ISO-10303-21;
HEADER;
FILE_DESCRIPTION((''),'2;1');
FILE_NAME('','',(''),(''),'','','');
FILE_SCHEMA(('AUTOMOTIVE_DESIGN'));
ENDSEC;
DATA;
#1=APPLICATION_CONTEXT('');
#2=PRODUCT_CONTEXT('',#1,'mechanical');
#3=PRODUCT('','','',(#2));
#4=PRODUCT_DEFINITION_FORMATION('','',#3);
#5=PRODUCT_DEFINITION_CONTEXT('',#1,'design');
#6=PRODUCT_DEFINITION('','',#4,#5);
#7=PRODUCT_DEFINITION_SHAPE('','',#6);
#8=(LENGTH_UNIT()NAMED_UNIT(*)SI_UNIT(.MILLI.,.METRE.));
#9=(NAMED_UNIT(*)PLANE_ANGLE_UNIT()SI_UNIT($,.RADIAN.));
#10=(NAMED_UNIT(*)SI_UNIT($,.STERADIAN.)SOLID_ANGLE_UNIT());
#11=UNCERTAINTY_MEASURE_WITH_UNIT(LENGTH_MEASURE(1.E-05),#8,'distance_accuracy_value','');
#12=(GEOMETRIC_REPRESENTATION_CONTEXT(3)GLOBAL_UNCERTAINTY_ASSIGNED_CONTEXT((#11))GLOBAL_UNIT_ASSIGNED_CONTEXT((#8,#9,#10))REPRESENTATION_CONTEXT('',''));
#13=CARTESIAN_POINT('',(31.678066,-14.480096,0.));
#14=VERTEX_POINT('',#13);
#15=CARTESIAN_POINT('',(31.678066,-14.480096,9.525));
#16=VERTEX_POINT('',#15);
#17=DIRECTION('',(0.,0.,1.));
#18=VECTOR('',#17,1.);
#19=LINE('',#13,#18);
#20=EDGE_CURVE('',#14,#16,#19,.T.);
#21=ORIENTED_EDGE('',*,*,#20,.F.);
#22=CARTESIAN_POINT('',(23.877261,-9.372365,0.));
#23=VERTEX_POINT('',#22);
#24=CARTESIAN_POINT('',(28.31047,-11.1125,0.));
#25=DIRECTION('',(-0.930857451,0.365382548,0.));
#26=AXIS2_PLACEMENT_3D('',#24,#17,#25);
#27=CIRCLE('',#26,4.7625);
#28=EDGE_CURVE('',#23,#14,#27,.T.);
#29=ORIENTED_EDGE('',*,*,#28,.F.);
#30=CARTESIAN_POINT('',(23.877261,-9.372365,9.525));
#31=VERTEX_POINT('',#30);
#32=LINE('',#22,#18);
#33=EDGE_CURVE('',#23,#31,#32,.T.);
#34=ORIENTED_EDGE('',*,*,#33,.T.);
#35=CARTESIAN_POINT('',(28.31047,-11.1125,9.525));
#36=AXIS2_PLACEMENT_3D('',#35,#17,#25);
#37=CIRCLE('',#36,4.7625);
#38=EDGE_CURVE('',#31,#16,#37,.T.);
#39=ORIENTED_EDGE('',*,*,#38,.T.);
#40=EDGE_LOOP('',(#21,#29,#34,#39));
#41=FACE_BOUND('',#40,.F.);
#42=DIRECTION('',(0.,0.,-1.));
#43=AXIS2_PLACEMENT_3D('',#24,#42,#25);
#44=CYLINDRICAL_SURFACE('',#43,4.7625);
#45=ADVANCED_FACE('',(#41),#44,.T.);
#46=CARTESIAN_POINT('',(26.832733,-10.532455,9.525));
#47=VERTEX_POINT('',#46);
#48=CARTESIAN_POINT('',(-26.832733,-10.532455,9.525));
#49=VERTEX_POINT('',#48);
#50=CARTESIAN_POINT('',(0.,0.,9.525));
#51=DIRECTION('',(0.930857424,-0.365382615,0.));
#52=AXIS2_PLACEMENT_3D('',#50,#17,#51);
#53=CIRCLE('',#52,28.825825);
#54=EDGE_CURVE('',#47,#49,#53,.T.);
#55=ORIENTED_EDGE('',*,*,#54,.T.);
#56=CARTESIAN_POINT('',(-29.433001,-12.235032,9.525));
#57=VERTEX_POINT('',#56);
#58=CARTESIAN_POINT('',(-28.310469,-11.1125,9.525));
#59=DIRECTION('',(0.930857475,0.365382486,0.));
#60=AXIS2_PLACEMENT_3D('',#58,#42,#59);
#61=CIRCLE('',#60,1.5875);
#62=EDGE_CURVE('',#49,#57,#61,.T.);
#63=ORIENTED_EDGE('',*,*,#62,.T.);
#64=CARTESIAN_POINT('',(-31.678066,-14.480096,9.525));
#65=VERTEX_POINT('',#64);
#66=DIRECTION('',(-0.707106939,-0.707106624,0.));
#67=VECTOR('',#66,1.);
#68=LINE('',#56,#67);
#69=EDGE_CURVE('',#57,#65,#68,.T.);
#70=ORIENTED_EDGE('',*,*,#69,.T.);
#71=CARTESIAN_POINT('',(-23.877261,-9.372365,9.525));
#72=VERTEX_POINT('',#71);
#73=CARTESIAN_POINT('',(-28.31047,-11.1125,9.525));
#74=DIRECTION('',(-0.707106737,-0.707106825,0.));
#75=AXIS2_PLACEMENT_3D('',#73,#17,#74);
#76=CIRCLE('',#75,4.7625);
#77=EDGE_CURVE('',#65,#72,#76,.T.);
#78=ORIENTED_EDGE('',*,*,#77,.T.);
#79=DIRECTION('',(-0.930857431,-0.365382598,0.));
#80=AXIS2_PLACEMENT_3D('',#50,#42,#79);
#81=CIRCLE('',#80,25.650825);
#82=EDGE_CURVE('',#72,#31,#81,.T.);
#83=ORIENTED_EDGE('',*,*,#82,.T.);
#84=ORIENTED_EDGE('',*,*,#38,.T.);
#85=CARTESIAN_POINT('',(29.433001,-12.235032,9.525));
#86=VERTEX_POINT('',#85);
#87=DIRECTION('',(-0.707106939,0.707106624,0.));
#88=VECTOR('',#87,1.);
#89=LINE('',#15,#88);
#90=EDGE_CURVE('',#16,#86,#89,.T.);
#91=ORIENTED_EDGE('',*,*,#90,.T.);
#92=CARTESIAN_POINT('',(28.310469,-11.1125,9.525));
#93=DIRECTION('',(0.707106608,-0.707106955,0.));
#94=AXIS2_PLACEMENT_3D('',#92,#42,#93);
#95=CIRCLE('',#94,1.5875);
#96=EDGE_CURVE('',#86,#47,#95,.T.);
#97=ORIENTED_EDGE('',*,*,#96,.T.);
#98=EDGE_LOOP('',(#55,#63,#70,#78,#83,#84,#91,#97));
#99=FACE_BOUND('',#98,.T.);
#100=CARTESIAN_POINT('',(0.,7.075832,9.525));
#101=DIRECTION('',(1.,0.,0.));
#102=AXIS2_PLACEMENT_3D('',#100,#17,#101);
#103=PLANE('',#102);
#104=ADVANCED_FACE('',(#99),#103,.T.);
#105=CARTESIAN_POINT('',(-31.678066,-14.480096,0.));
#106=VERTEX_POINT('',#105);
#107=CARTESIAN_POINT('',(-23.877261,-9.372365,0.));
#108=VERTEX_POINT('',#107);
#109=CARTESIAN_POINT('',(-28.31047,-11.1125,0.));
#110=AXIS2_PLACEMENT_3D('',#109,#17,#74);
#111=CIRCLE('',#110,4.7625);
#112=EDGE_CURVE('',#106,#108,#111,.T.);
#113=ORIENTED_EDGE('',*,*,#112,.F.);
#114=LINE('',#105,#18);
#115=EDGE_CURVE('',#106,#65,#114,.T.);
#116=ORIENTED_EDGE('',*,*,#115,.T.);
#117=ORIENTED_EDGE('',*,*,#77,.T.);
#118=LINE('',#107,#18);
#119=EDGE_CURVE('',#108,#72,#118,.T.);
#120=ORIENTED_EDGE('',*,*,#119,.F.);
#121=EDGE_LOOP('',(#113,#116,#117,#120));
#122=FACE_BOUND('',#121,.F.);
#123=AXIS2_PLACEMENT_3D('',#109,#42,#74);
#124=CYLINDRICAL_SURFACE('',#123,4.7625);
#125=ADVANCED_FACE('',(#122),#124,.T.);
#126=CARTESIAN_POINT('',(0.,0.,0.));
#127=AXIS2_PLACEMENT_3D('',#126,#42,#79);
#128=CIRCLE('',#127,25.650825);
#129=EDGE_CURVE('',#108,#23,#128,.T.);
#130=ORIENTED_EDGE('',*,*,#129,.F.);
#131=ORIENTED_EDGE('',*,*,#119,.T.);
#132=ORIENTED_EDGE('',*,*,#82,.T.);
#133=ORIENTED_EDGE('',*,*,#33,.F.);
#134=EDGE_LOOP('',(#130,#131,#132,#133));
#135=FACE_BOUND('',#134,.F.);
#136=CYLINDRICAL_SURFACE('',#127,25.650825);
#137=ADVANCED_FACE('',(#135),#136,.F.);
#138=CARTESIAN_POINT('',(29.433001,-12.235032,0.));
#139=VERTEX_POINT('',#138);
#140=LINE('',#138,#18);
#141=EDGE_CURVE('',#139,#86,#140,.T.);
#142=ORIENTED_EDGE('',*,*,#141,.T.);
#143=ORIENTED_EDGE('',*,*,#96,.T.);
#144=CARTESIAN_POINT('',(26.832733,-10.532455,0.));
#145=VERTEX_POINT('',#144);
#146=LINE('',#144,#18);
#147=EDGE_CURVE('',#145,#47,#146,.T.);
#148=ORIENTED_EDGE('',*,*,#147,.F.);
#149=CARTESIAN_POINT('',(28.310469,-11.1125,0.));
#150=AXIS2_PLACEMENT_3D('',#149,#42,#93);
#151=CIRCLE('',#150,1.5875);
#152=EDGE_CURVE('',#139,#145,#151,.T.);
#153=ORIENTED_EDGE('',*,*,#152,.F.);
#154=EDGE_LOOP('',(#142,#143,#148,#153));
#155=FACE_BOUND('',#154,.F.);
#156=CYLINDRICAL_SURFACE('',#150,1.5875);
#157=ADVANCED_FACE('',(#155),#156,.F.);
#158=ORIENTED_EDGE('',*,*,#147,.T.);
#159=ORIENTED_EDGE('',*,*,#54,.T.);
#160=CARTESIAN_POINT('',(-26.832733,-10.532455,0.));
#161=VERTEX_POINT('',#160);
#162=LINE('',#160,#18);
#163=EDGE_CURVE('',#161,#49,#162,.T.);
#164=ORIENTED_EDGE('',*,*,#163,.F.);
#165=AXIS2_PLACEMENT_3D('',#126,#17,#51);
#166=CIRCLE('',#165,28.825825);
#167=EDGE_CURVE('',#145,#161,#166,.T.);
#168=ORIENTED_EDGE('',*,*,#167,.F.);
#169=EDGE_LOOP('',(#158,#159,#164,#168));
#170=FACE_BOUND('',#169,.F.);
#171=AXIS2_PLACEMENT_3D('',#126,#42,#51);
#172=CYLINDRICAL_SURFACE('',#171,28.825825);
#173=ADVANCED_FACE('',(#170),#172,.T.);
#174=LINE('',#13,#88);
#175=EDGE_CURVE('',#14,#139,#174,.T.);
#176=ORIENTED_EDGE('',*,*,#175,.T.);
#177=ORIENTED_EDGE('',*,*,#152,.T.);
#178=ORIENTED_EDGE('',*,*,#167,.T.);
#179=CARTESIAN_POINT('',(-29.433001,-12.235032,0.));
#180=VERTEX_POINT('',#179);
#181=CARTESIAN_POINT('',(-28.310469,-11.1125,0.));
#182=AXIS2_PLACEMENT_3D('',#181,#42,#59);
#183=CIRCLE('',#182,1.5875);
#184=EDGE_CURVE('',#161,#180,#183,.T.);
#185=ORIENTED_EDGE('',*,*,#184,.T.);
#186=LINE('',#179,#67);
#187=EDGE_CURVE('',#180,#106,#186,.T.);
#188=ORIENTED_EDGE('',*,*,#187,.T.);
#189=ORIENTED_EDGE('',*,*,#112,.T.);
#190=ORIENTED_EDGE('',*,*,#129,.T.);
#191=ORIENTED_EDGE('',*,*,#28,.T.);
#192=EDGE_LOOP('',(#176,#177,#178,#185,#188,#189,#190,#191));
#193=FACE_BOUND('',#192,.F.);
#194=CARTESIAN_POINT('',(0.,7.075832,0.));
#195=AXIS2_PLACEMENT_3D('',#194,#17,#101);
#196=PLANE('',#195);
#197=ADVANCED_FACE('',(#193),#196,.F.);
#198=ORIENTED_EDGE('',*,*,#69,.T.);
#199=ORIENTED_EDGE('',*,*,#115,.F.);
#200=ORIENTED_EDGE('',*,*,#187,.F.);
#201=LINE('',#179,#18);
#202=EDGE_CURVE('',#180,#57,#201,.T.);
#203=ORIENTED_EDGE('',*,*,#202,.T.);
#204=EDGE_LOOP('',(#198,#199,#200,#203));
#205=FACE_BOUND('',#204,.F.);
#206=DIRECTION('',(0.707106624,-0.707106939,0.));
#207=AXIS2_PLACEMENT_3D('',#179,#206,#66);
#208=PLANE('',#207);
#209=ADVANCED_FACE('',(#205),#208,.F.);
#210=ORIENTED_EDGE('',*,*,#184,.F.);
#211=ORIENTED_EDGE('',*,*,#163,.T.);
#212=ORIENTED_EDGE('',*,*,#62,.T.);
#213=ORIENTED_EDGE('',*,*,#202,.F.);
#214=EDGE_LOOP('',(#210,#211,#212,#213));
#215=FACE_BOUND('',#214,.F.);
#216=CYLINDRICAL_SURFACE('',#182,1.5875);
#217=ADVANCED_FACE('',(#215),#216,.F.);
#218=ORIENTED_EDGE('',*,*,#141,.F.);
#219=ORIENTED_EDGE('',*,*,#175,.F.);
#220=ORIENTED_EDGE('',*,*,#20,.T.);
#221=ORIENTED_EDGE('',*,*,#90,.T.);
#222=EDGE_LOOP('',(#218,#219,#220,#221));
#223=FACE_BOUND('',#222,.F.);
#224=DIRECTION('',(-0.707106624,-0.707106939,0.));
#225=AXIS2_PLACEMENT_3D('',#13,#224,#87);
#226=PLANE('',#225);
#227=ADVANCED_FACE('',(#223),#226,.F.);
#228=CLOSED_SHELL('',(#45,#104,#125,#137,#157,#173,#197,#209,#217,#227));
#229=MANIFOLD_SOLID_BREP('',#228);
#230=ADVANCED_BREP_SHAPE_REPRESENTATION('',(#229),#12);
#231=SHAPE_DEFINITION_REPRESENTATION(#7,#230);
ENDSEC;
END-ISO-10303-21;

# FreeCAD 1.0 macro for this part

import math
import FreeCAD as App
import Part
import Sketcher

V = App.Vector
Q = App.Units.Quantity

doc = App.newDocument("Part")
body = doc.addObject("PartDesign::Body", "Body")

sketch1 = doc.addObject("Sketcher::SketchObject", "Sketch")
body.addObject(sketch1)
sketch1.AttachmentSupport = (doc.XY_Plane, [""])
sketch1.MapMode = "FlatFace"
sketch1.addGeometry([
    Part.ArcOfCircle(Part.Circle(V(0, 0, 0), V(0, 0, 1), 25.650825), math.radians(-21.43113), math.radians(201.43113)),
    Part.ArcOfCircle(Part.Circle(V(28.31047, -11.1125, 0), V(0, 0, 1), 4.7625), math.radians(158.568873), math.radians(314.999996)),
    Part.LineSegment(V(31.678066, -14.480096, 0), V(29.433001, -12.235032, 0)),
    Part.ArcOfCircle(Part.Circle(V(28.310469, -11.1125, 0), V(0, 0, 1), 1.5875), math.radians(158.568877), math.radians(314.999986)),
    Part.ArcOfCircle(Part.Circle(V(0, 0, 0), V(0, 0, 1), 28.825825), math.radians(-21.431131), math.radians(201.431131)),
    Part.ArcOfCircle(Part.Circle(V(-28.310469, -11.1125, 0), V(0, 0, 1), 1.5875), math.radians(-134.999986), math.radians(21.431123)),
    Part.LineSegment(V(-29.433001, -12.235032, 0), V(-31.678066, -14.480096, 0)),
    Part.ArcOfCircle(Part.Circle(V(-28.31047, -11.1125, 0), V(0, 0, 1), 4.7625), math.radians(-134.999996), math.radians(21.431127)),
], False)
sketch1.addConstraint([
    Sketcher.Constraint("Tangent", 0, 1, 1, 1),
    Sketcher.Constraint("Coincident", 1, 2, 2, 1),
    Sketcher.Constraint("Coincident", 2, 2, 3, 2),
    Sketcher.Constraint("Tangent", 3, 1, 4, 1),
    Sketcher.Constraint("Tangent", 4, 2, 5, 2),
    Sketcher.Constraint("Coincident", 5, 1, 6, 1),
    Sketcher.Constraint("Coincident", 6, 2, 7, 1),
    Sketcher.Constraint("Tangent", 7, 2, 0, 2),
    Sketcher.Constraint("Coincident", 0, 3, -1, 1),
    Sketcher.Constraint("Coincident", 4, 3, -1, 1),
    Sketcher.Constraint("Coincident", 3, 3, 1, 3),
    Sketcher.Constraint("Coincident", 7, 3, 5, 3),
    Sketcher.Constraint("Equal", 3, 5),
    Sketcher.Constraint("Symmetric", 2, 2, 5, 1, -2),
    Sketcher.Constraint("Perpendicular", 2, 6),
    Sketcher.Constraint("Horizontal", 1, 2, 6, 2),
    Sketcher.Constraint("Radius", 1, Q("0.1875 in")),
    Sketcher.Constraint("Radius", 3, Q("0.0625 in")),
    Sketcher.Constraint("DistanceY", 1, 3, -1, 1, Q("0.4375 in")),
    Sketcher.Constraint("Radius", 0, 25.650825),
    Sketcher.Constraint("DistanceX", -1, 1, 2, 2, 29.433001),
])
pad1 = doc.addObject("PartDesign::Pad", "Pad")
body.addObject(pad1)
pad1.Profile = sketch1
pad1.Length = Q("0.375 in")

doc.recompute()
